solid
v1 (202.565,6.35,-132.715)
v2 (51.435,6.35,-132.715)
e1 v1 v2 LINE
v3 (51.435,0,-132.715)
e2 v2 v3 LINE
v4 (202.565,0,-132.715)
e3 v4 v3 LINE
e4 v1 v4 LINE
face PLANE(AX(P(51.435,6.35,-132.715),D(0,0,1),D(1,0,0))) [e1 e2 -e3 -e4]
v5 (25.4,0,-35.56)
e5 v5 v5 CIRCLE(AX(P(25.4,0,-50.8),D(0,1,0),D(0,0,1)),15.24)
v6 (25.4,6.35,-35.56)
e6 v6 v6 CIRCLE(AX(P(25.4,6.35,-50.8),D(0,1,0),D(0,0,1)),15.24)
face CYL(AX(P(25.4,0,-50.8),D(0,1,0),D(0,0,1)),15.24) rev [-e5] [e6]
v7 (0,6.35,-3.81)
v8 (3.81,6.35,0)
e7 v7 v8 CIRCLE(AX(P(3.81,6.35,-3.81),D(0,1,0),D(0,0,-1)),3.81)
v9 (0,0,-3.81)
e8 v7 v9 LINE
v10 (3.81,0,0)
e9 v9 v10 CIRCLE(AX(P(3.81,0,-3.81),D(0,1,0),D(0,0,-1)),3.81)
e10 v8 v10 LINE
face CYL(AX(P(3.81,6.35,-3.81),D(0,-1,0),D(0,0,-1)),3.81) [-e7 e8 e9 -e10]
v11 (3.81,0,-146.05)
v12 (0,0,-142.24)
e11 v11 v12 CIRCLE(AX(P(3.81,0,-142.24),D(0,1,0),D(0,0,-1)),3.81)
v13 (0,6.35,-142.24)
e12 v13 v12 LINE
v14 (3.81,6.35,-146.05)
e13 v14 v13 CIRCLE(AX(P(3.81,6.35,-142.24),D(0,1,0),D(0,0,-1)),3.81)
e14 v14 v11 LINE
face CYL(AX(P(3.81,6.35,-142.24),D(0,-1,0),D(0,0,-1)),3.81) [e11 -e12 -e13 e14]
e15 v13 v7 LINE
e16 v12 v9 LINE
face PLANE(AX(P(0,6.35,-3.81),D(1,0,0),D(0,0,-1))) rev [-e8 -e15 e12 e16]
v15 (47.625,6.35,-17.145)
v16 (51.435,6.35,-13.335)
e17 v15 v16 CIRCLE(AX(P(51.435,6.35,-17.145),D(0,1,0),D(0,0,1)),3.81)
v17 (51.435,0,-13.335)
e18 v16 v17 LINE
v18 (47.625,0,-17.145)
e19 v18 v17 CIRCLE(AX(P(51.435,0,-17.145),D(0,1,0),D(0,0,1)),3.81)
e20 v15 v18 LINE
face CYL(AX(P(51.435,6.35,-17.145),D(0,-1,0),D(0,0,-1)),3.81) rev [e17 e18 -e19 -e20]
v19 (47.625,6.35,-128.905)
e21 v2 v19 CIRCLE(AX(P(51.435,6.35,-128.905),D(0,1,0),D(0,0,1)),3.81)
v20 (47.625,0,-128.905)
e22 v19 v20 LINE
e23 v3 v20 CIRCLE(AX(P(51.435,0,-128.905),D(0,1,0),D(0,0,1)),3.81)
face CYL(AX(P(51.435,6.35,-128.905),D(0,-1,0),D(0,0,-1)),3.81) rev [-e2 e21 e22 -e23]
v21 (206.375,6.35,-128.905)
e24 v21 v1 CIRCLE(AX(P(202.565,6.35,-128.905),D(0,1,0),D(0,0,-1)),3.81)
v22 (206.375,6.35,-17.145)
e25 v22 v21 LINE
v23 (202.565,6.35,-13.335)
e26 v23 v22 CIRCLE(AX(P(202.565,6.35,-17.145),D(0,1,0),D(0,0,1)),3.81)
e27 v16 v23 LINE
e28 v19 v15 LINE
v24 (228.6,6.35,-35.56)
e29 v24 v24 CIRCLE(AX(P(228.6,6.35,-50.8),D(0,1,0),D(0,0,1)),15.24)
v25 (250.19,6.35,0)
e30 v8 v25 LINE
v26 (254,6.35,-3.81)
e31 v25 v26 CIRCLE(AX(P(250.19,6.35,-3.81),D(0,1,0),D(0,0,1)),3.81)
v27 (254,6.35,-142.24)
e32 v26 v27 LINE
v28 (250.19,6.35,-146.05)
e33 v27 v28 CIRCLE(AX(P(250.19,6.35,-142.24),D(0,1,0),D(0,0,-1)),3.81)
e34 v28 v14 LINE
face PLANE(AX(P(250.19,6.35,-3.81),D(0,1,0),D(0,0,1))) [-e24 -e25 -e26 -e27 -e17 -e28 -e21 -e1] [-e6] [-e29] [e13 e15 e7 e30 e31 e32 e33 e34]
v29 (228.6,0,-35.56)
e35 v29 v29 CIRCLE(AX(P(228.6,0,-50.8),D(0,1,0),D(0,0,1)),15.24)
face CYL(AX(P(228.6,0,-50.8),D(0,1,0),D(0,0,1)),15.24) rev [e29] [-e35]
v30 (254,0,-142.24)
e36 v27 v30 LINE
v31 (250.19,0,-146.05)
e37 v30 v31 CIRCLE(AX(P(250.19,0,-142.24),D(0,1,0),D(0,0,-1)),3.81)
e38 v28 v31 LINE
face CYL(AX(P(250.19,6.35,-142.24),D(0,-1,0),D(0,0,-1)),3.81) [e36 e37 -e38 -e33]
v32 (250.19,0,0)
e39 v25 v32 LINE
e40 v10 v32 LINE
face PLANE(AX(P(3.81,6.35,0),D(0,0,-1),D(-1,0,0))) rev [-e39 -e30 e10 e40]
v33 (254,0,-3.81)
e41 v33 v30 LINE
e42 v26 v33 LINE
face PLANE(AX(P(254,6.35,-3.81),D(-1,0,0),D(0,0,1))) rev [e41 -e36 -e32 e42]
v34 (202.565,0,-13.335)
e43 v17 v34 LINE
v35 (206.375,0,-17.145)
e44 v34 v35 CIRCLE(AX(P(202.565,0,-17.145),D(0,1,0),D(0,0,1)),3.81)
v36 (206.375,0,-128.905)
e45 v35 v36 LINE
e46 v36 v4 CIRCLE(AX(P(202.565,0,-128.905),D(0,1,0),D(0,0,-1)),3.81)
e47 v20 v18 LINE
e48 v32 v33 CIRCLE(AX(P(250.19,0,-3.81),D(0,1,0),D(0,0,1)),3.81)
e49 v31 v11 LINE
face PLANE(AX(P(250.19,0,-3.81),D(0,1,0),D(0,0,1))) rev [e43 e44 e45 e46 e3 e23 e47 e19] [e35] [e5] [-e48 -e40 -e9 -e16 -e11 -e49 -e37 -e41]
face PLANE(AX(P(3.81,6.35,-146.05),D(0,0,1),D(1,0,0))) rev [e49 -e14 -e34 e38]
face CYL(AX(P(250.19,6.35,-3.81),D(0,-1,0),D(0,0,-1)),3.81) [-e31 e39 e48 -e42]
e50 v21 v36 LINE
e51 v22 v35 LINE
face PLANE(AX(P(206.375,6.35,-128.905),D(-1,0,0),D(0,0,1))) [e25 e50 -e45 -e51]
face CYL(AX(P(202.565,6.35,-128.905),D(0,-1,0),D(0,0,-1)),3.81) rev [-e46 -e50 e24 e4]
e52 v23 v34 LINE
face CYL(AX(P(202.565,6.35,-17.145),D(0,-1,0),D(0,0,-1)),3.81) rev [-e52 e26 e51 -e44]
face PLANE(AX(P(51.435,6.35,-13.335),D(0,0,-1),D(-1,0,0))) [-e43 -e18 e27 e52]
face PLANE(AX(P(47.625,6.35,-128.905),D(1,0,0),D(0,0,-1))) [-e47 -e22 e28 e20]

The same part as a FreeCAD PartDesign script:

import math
import FreeCAD as App
import Part
import Sketcher

V = App.Vector
Q = App.Units.Quantity

doc = App.newDocument("Part")
params = doc.addObject("Spreadsheet::Sheet", "Params")
for row, (alias, value) in enumerate([
    ("sketch1_radius", "0.15 in"),
    ("sketch1_width", "9.7 in"),
    ("sketch1_height", "4.4 in"),
    ("sketch1_width2", "5.95 in"),
    ("sketch1_height2", "5.45 in"),
    ("pad1_length", "0.25 in"),
    ("sketch2_diameter", "1.2 in"),
], start=1):
    params.set(f"A{row}", alias)
    params.set(f"B{row}", "=" + value)
    params.setAlias(f"B{row}", alias)

body = doc.addObject("PartDesign::Body", "Body")

# Sketch on XZ plane
sketch1 = body.newObject("Sketcher::SketchObject", "Sketch")
sketch1.AttachmentSupport = (doc.getObject("XZ_Plane"), [""])
sketch1.MapMode = "FlatFace"
sketch1.addGeometry([
    Part.LineSegment(V(3.81, 0, 0), V(250.19, 0, 0)),  # 0
    Part.ArcOfCircle(Part.Circle(V(250.19, -3.81, 0), V(0, 0, 1), 3.81), math.radians(0), math.radians(90)),  # 1
    Part.LineSegment(V(254, -3.81, 0), V(254, -142.24, 0)),  # 2
    Part.ArcOfCircle(Part.Circle(V(250.19, -142.24, 0), V(0, 0, 1), 3.81), math.radians(-90), math.radians(0)),  # 3
    Part.LineSegment(V(250.19, -146.05, 0), V(3.81, -146.05, 0)),  # 4
    Part.ArcOfCircle(Part.Circle(V(3.81, -142.24, 0), V(0, 0, 1), 3.81), math.radians(-180), math.radians(-90)),  # 5
    Part.LineSegment(V(0, -142.24, 0), V(0, -3.81, 0)),  # 6
    Part.ArcOfCircle(Part.Circle(V(3.81, -3.81, 0), V(0, 0, 1), 3.81), math.radians(90), math.radians(180)),  # 7
    Part.ArcOfCircle(Part.Circle(V(51.435, -128.905, 0), V(0, 0, 1), 3.81), math.radians(-180), math.radians(-90)),  # 8
    Part.LineSegment(V(51.435, -132.715, 0), V(202.565, -132.715, 0)),  # 9
    Part.ArcOfCircle(Part.Circle(V(202.565, -128.905, 0), V(0, 0, 1), 3.81), math.radians(-90), math.radians(0)),  # 10
    Part.LineSegment(V(206.375, -128.905, 0), V(206.375, -17.145, 0)),  # 11
    Part.ArcOfCircle(Part.Circle(V(202.565, -17.145, 0), V(0, 0, 1), 3.81), math.radians(0), math.radians(90)),  # 12
    Part.LineSegment(V(202.565, -13.335, 0), V(51.435, -13.335, 0)),  # 13
    Part.ArcOfCircle(Part.Circle(V(51.435, -17.145, 0), V(0, 0, 1), 3.81), math.radians(90), math.radians(180)),  # 14
    Part.LineSegment(V(47.625, -17.145, 0), V(47.625, -128.905, 0)),  # 15
], False)
sketch1.addConstraint([
    Sketcher.Constraint("Tangent", 0, 2, 1, 2),
    Sketcher.Constraint("Tangent", 1, 1, 2, 1),
    Sketcher.Constraint("Tangent", 2, 2, 3, 2),
    Sketcher.Constraint("Tangent", 3, 1, 4, 1),
    Sketcher.Constraint("Tangent", 4, 2, 5, 2),
    Sketcher.Constraint("Tangent", 5, 1, 6, 1),
    Sketcher.Constraint("Tangent", 6, 2, 7, 2),
    Sketcher.Constraint("Tangent", 7, 1, 0, 1),
    Sketcher.Constraint("Tangent", 8, 2, 9, 1),
    Sketcher.Constraint("Tangent", 9, 2, 10, 1),
    Sketcher.Constraint("Tangent", 10, 2, 11, 1),
    Sketcher.Constraint("Tangent", 11, 2, 12, 1),
    Sketcher.Constraint("Tangent", 12, 2, 13, 1),
    Sketcher.Constraint("Tangent", 13, 2, 14, 1),
    Sketcher.Constraint("Tangent", 14, 2, 15, 1),
    Sketcher.Constraint("Tangent", 15, 2, 8, 1),
    Sketcher.Constraint("Horizontal", 0),
    Sketcher.Constraint("Vertical", 2),
    Sketcher.Constraint("Horizontal", 4),
    Sketcher.Constraint("Vertical", 6),
    Sketcher.Constraint("Horizontal", 9),
    Sketcher.Constraint("Vertical", 11),
    Sketcher.Constraint("Horizontal", 13),
    Sketcher.Constraint("Vertical", 15),
    Sketcher.Constraint("Equal", 1, 3),
    Sketcher.Constraint("Equal", 3, 5),
    Sketcher.Constraint("Equal", 5, 7),
    Sketcher.Constraint("Equal", 7, 8),
    Sketcher.Constraint("Equal", 8, 10),
    Sketcher.Constraint("Equal", 10, 12),
    Sketcher.Constraint("Equal", 12, 14),
    Sketcher.Constraint("PointOnObject", 0, 2, -1),
    Sketcher.Constraint("PointOnObject", 5, 1, -2),
    Sketcher.Constraint("Radius", 1, Q("0.15 in")),
    Sketcher.Constraint("DistanceX", 0, 1, 0, 2, Q("9.7 in")),
    Sketcher.Constraint("DistanceY", 11, 1, 11, 2, Q("4.4 in")),
    Sketcher.Constraint("DistanceX", 9, 1, 9, 2, Q("5.95 in")),
    Sketcher.Constraint("DistanceY", 2, 2, 2, 1, Q("5.45 in")),
    Sketcher.Constraint("DistanceX", -1, 1, 8, 3, Q("2.025 in")),
    Sketcher.Constraint("DistanceY", 8, 3, -1, 1, Q("5.075 in")),
])
sketch1.setExpression("Constraints[33]", "Params.sketch1_radius")
sketch1.setExpression("Constraints[34]", "Params.sketch1_width")
sketch1.setExpression("Constraints[35]", "Params.sketch1_height")
sketch1.setExpression("Constraints[36]", "Params.sketch1_width2")
sketch1.setExpression("Constraints[37]", "Params.sketch1_height2")
pad1 = body.newObject("PartDesign::Pad", "Pad")
pad1.Profile = sketch1
pad1.setExpression("Length", "Params.pad1_length")
pad1.Reversed = True

# Sketch on XZ plane
sketch2 = body.newObject("Sketcher::SketchObject", "Sketch001")
sketch2.AttachmentSupport = (doc.getObject("XZ_Plane"), [""])
sketch2.MapMode = "FlatFace"
sketch2.AttachmentOffset = App.Placement(V(0, 0, -0.25 * 25.4), App.Rotation())
sketch2.addGeometry([
    Part.Circle(V(25.4, -50.8, 0), V(0, 0, 1), 15.24),
    Part.Circle(V(228.6, -50.8, 0), V(0, 0, 1), 15.24),
], False)
sketch2.addConstraint([
    Sketcher.Constraint("Equal", 0, 1),
    Sketcher.Constraint("Horizontal", 0, 3, 1, 3),
    Sketcher.Constraint("Diameter", 0, Q("1.2 in")),
    Sketcher.Constraint("DistanceX", -1, 1, 0, 3, Q("1 in")),
    Sketcher.Constraint("DistanceY", 0, 3, -1, 1, Q("2 in")),
    Sketcher.Constraint("DistanceX", -1, 1, 1, 3, Q("9 in")),
])
sketch2.setExpression("Constraints[2]", "Params.sketch2_diameter")
pocket1 = body.newObject("PartDesign::Pocket", "Pocket")
pocket1.Profile = sketch2
pocket1.Type = "ThroughAll"
pocket1.Reversed = True

doc.recompute()
